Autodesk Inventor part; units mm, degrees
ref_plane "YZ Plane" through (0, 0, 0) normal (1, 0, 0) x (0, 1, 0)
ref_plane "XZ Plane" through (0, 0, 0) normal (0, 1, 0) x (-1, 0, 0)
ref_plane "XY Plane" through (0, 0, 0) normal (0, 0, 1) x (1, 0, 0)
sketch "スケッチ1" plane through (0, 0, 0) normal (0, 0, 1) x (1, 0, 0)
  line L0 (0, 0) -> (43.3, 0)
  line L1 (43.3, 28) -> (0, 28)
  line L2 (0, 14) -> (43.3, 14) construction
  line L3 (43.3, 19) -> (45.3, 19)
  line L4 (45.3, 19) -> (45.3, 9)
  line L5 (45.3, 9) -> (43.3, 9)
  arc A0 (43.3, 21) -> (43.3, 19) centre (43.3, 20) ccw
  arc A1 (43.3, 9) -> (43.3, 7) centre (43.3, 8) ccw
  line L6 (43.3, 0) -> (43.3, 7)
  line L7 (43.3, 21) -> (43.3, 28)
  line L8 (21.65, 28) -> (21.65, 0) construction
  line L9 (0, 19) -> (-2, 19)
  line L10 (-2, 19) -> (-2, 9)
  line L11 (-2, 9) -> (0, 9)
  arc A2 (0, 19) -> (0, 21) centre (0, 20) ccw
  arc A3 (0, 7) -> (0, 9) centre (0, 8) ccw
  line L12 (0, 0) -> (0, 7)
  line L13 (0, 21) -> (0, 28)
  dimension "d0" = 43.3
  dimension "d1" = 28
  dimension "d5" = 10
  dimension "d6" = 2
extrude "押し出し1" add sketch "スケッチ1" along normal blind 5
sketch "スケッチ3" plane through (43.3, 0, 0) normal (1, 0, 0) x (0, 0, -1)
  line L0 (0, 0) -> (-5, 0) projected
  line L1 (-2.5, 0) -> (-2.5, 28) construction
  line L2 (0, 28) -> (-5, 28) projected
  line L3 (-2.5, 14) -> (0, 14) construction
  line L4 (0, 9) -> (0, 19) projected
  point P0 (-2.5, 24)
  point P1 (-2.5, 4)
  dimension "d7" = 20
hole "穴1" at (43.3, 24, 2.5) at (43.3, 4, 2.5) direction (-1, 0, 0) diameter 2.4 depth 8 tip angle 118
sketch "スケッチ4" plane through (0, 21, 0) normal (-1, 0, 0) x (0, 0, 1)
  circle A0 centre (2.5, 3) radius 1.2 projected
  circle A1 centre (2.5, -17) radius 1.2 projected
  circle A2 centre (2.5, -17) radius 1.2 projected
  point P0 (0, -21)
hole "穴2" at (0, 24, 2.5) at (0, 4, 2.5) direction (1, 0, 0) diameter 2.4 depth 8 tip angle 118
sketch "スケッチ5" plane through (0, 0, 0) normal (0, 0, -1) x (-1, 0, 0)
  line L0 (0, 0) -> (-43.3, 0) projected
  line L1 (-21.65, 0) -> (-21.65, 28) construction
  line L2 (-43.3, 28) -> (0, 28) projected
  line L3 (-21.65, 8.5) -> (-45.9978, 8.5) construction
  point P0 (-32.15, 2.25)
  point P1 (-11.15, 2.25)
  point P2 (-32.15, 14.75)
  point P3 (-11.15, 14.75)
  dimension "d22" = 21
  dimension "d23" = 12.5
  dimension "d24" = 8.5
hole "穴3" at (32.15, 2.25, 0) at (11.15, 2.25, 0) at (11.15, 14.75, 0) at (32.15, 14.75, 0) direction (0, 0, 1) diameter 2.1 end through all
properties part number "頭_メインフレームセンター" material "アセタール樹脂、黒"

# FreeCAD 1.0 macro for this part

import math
import FreeCAD as App
import Part
import Sketcher

doc = App.newDocument("Part")
params = doc.addObject("Spreadsheet::Sheet", "Params")
for row, (alias, value) in enumerate([
    ("sketch1_radius", "1 mm"),
    ("sketch1_width", "2 mm"),
    ("sketch1_height", "10 mm"),
    ("sketch1_width2", "43.3 mm"),
    ("pad1_length", "5 mm"),
    ("sketch2_diameter", "2.4 mm"),
    ("hole_diameter", "2.4 mm"),
    ("hole_depth", "8 mm"),
    ("sketch3_diameter", "2.4 mm"),
    ("hole2_diameter", "2.4 mm"),
    ("hole2_depth", "8 mm"),
    ("sketch4_diameter", "2.1 mm"),
    ("hole3_diameter", "2.1 mm"),
], start=1):
    params.set(f"A{row}", alias)
    params.set(f"B{row}", "=" + value)
    params.setAlias(f"B{row}", alias)

body = doc.addObject("PartDesign::Body", "Body")

# Sketch on XY plane
sketch1 = body.newObject("Sketcher::SketchObject", "Sketch")
sketch1.AttachmentSupport = (doc.getObject("XY_Plane"), [""])
sketch1.MapMode = "FlatFace"
sketch1.addGeometry(Part.LineSegment(App.Vector(0, 7, 0), App.Vector(0, 0, 0)), False)
sketch1.addGeometry(Part.LineSegment(App.Vector(0, 0, 0), App.Vector(43.3, 0, 0)), False)
sketch1.addGeometry(Part.LineSegment(App.Vector(43.3, 0, 0), App.Vector(43.3, 7, 0)), False)
sketch1.addGeometry(Part.ArcOfCircle(Part.Circle(App.Vector(43.3, 8, 0), App.Vector(0, 0, 1), 1), math.radians(90), math.radians(270)), False)
sketch1.addGeometry(Part.LineSegment(App.Vector(43.3, 9, 0), App.Vector(45.3, 9, 0)), False)
sketch1.addGeometry(Part.LineSegment(App.Vector(45.3, 9, 0), App.Vector(45.3, 19, 0)), False)
sketch1.addGeometry(Part.LineSegment(App.Vector(45.3, 19, 0), App.Vector(43.3, 19, 0)), False)
sketch1.addGeometry(Part.ArcOfCircle(Part.Circle(App.Vector(43.3, 20, 0), App.Vector(0, 0, 1), 1), math.radians(90), math.radians(270)), False)
sketch1.addGeometry(Part.LineSegment(App.Vector(43.3, 21, 0), App.Vector(43.3, 28, 0)), False)
sketch1.addGeometry(Part.LineSegment(App.Vector(43.3, 28, 0), App.Vector(0, 28, 0)), False)
sketch1.addGeometry(Part.LineSegment(App.Vector(0, 28, 0), App.Vector(0, 21, 0)), False)
sketch1.addGeometry(Part.ArcOfCircle(Part.Circle(App.Vector(0, 20, 0), App.Vector(0, 0, 1), 1), math.radians(-90), math.radians(90)), False)
sketch1.addGeometry(Part.LineSegment(App.Vector(0, 19, 0), App.Vector(-2, 19, 0)), False)
sketch1.addGeometry(Part.LineSegment(App.Vector(-2, 19, 0), App.Vector(-2, 9, 0)), False)
sketch1.addGeometry(Part.LineSegment(App.Vector(-2, 9, 0), App.Vector(0, 9, 0)), False)
sketch1.addGeometry(Part.ArcOfCircle(Part.Circle(App.Vector(0, 8, 0), App.Vector(0, 0, 1), 1), math.radians(-90), math.radians(90)), False)
sketch1.addConstraint(Sketcher.Constraint("Coincident", 0, 2, 1, 1))
sketch1.addConstraint(Sketcher.Constraint("Coincident", 1, 2, 2, 1))
sketch1.addConstraint(Sketcher.Constraint("Coincident", 2, 2, 3, 2))
sketch1.addConstraint(Sketcher.Constraint("Tangent", 3, 1, 4, 1))
sketch1.addConstraint(Sketcher.Constraint("Coincident", 4, 2, 5, 1))
sketch1.addConstraint(Sketcher.Constraint("Coincident", 5, 2, 6, 1))
sketch1.addConstraint(Sketcher.Constraint("Tangent", 6, 2, 7, 2))
sketch1.addConstraint(Sketcher.Constraint("Coincident", 7, 1, 8, 1))
sketch1.addConstraint(Sketcher.Constraint("Coincident", 8, 2, 9, 1))
sketch1.addConstraint(Sketcher.Constraint("Coincident", 9, 2, 10, 1))
sketch1.addConstraint(Sketcher.Constraint("Coincident", 10, 2, 11, 2))
sketch1.addConstraint(Sketcher.Constraint("Tangent", 11, 1, 12, 1))
sketch1.addConstraint(Sketcher.Constraint("Coincident", 12, 2, 13, 1))
sketch1.addConstraint(Sketcher.Constraint("Coincident", 13, 2, 14, 1))
sketch1.addConstraint(Sketcher.Constraint("Tangent", 14, 2, 15, 2))
sketch1.addConstraint(Sketcher.Constraint("Coincident", 15, 1, 0, 1))
sketch1.addConstraint(Sketcher.Constraint("Vertical", 0))
sketch1.addConstraint(Sketcher.Constraint("Horizontal", 1))
sketch1.addConstraint(Sketcher.Constraint("Vertical", 2))
sketch1.addConstraint(Sketcher.Constraint("Horizontal", 4))
sketch1.addConstraint(Sketcher.Constraint("Vertical", 5))
sketch1.addConstraint(Sketcher.Constraint("Horizontal", 6))
sketch1.addConstraint(Sketcher.Constraint("Vertical", 8))
sketch1.addConstraint(Sketcher.Constraint("Horizontal", 9))
sketch1.addConstraint(Sketcher.Constraint("Vertical", 10))
sketch1.addConstraint(Sketcher.Constraint("Horizontal", 12))
sketch1.addConstraint(Sketcher.Constraint("Vertical", 13))
sketch1.addConstraint(Sketcher.Constraint("Horizontal", 14))
sketch1.addConstraint(Sketcher.Constraint("Coincident", 0, 2, -1, 1))
sketch1.addConstraint(Sketcher.Constraint("Equal", 3, 7))
sketch1.addConstraint(Sketcher.Constraint("Equal", 7, 11))
sketch1.addConstraint(Sketcher.Constraint("Equal", 11, 15))
sketch1.addConstraint(Sketcher.Constraint("PointOnObject", 11, 3, -2))
sketch1.addConstraint(Sketcher.Constraint("PointOnObject", 15, 3, -2))
sketch1.addConstraint(Sketcher.Constraint("PointOnObject", 9, 2, -2))
sketch1.addConstraint(Sketcher.Constraint("Horizontal", 7, 3, 11, 3))
sketch1.addConstraint(Sketcher.Constraint("Horizontal", 3, 3, 15, 3))
sketch1.addConstraint(Sketcher.Constraint("Vertical", 3, 3, 7, 3))
sketch1.addConstraint(Sketcher.Constraint("Vertical", 7, 3, 1, 2))
sketch1.addConstraint(Sketcher.Constraint("Vertical", 6, 2, 7, 1))
sketch1.addConstraint(Sketcher.Constraint("Equal", 6, 12))
sketch1.addConstraint(Sketcher.Constraint("Equal", 2, 8))
sketch1.addConstraint(Sketcher.Constraint("Radius", 3, 1.0))
sketch1.addConstraint(Sketcher.Constraint("DistanceX", 4, 1, 4, 2, 2.0))
sketch1.addConstraint(Sketcher.Constraint("DistanceY", 5, 1, 5, 2, 10.0))
sketch1.addConstraint(Sketcher.Constraint("DistanceX", 1, 1, 1, 2, 43.3))
sketch1.addConstraint(Sketcher.Constraint("DistanceY", -1, 1, 8, 2, 28.0))
sketch1.setExpression("Constraints[42]", "Params.sketch1_radius")
sketch1.setExpression("Constraints[43]", "Params.sketch1_width")
sketch1.setExpression("Constraints[44]", "Params.sketch1_height")
sketch1.setExpression("Constraints[45]", "Params.sketch1_width2")
pad1 = body.newObject("PartDesign::Pad", "Pad")
pad1.Profile = sketch1
pad1.setExpression("Length", "Params.pad1_length")

# Sketch on YZ plane
sketch2 = body.newObject("Sketcher::SketchObject", "Sketch001")
sketch2.AttachmentSupport = (doc.getObject("YZ_Plane"), [""])
sketch2.MapMode = "FlatFace"
sketch2.AttachmentOffset = App.Placement(App.Vector(0, 0, 43.3), App.Rotation())
sketch2.addGeometry(Part.Circle(App.Vector(24, 2.5, 0), App.Vector(0, 0, 1), 1.2), False)
sketch2.addGeometry(Part.Circle(App.Vector(4, 2.5, 0), App.Vector(0, 0, 1), 1.2), False)
sketch2.addConstraint(Sketcher.Constraint("Equal", 0, 1))
sketch2.addConstraint(Sketcher.Constraint("Horizontal", 0, 3, 1, 3))
sketch2.addConstraint(Sketcher.Constraint("Diameter", 0, 2.4))
sketch2.addConstraint(Sketcher.Constraint("DistanceX", -1, 1, 0, 3, 24.0))
sketch2.addConstraint(Sketcher.Constraint("DistanceX", -1, 1, 1, 3, 4.0))
sketch2.addConstraint(Sketcher.Constraint("DistanceY", -1, 1, 0, 3, 2.5))
sketch2.setExpression("Constraints[2]", "Params.sketch2_diameter")
doc.recompute()
hole = body.newObject("PartDesign::Hole", "Hole")
hole.Profile = sketch2
hole.ThreadType = "None"
hole.setExpression("Diameter", "Params.hole_diameter")
hole.DepthType = "Dimension"
hole.setExpression("Depth", "Params.hole_depth")
hole.DrillPoint = "Angled"
hole.DrillPointAngle = 118

# Sketch on YZ plane
sketch3 = body.newObject("Sketcher::SketchObject", "Sketch002")
sketch3.AttachmentSupport = (doc.getObject("YZ_Plane"), [""])
sketch3.MapMode = "FlatFace"
sketch3.addGeometry(Part.Circle(App.Vector(24, 2.5, 0), App.Vector(0, 0, 1), 1.2), False)
sketch3.addGeometry(Part.Circle(App.Vector(4, 2.5, 0), App.Vector(0, 0, 1), 1.2), False)
sketch3.addConstraint(Sketcher.Constraint("Equal", 0, 1))
sketch3.addConstraint(Sketcher.Constraint("Horizontal", 0, 3, 1, 3))
sketch3.addConstraint(Sketcher.Constraint("Diameter", 0, 2.4))
sketch3.addConstraint(Sketcher.Constraint("DistanceX", -1, 1, 0, 3, 24.0))
sketch3.addConstraint(Sketcher.Constraint("DistanceX", -1, 1, 1, 3, 4.0))
sketch3.addConstraint(Sketcher.Constraint("DistanceY", -1, 1, 0, 3, 2.5))
sketch3.setExpression("Constraints[2]", "Params.sketch3_diameter")
doc.recompute()
hole2 = body.newObject("PartDesign::Hole", "Hole001")
hole2.Profile = sketch3
hole2.ThreadType = "None"
hole2.setExpression("Diameter", "Params.hole2_diameter")
hole2.DepthType = "Dimension"
hole2.setExpression("Depth", "Params.hole2_depth")
hole2.DrillPoint = "Angled"
hole2.DrillPointAngle = 118
hole2.Reversed = True

# Sketch on XY plane
sketch4 = body.newObject("Sketcher::SketchObject", "Sketch003")
sketch4.AttachmentSupport = (doc.getObject("XY_Plane"), [""])
sketch4.MapMode = "FlatFace"
sketch4.addGeometry(Part.Circle(App.Vector(32.15, 2.25, 0), App.Vector(0, 0, 1), 1.05), False)
sketch4.addGeometry(Part.Circle(App.Vector(11.15, 2.25, 0), App.Vector(0, 0, 1), 1.05), False)
sketch4.addGeometry(Part.Circle(App.Vector(11.15, 14.75, 0), App.Vector(0, 0, 1), 1.05), False)
sketch4.addGeometry(Part.Circle(App.Vector(32.15, 14.75, 0), App.Vector(0, 0, 1), 1.05), False)
sketch4.addConstraint(Sketcher.Constraint("Equal", 0, 1))
sketch4.addConstraint(Sketcher.Constraint("Equal", 1, 2))
sketch4.addConstraint(Sketcher.Constraint("Equal", 2, 3))
sketch4.addConstraint(Sketcher.Constraint("Horizontal", 0, 3, 1, 3))
sketch4.addConstraint(Sketcher.Constraint("Horizontal", 2, 3, 3, 3))
sketch4.addConstraint(Sketcher.Constraint("Vertical", 1, 3, 2, 3))
sketch4.addConstraint(Sketcher.Constraint("Vertical", 0, 3, 3, 3))
sketch4.addConstraint(Sketcher.Constraint("Diameter", 0, 2.1))
sketch4.addConstraint(Sketcher.Constraint("DistanceX", 1, 3, 0, 3, 21.0))
sketch4.addConstraint(Sketcher.Constraint("DistanceY", 1, 3, 2, 3, 12.5))
sketch4.addConstraint(Sketcher.Constraint("DistanceX", -1, 1, 0, 3, 32.15))
sketch4.addConstraint(Sketcher.Constraint("DistanceY", -1, 1, 0, 3, 2.25))
sketch4.setExpression("Constraints[7]", "Params.sketch4_diameter")
doc.recompute()
hole3 = body.newObject("PartDesign::Hole", "Hole002")
hole3.Profile = sketch4
hole3.ThreadType = "None"
hole3.setExpression("Diameter", "Params.hole3_diameter")
hole3.DepthType = "ThroughAll"
hole3.Reversed = True

doc.recompute()
